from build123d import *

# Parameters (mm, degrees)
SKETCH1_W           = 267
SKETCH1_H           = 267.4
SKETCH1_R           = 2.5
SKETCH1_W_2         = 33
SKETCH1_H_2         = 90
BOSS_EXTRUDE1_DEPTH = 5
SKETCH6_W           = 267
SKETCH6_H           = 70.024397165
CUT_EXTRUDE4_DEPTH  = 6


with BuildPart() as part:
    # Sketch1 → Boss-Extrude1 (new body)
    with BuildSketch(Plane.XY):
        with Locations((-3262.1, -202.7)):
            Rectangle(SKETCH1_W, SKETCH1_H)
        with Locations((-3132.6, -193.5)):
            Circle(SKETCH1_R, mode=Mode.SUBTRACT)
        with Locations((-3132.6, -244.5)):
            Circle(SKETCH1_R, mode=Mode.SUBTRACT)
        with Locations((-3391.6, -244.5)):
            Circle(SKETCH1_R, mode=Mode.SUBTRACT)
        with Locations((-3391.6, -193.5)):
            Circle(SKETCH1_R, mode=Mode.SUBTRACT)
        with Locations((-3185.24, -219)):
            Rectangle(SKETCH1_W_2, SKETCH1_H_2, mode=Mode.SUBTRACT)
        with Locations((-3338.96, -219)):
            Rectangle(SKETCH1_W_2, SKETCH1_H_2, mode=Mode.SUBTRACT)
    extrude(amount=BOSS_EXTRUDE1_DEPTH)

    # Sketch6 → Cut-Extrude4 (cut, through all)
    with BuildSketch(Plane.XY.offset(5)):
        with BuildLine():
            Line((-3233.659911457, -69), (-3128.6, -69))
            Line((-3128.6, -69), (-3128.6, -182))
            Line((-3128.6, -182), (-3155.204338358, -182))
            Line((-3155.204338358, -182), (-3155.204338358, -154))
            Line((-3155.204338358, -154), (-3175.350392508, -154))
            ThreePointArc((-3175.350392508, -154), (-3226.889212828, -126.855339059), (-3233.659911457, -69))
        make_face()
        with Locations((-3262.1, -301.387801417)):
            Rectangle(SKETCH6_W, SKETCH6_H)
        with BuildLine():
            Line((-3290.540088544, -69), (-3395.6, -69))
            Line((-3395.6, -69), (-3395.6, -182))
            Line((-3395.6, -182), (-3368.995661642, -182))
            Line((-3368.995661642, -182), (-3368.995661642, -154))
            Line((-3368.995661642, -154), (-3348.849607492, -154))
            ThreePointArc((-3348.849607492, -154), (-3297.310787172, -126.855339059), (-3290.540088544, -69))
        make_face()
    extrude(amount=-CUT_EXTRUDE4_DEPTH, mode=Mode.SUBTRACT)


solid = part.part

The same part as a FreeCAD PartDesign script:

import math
import FreeCAD as App
import Part
import Sketcher


def add_polygon(sketch, points):
    """Adds a closed chain of lines whose ends are joined by coincident constraints."""
    first, n = sketch.GeometryCount, len(points)
    for a, b in zip(points, points[1:] + points[:1]):
        sketch.addGeometry(Part.LineSegment(App.Vector(*a, 0), App.Vector(*b, 0)), False)
    for i in range(n):
        sketch.addConstraint(Sketcher.Constraint("Coincident", first + i, 2, first + (i + 1) % n, 1))

doc = App.newDocument("Part")
params = doc.addObject("Spreadsheet::Sheet", "Params")
for row, (alias, value) in enumerate([
    ("sketch1_diameter", "5 mm"),
    ("sketch1_width", "267 mm"),
    ("sketch1_width2", "33 mm"),
    ("sketch1_height", "90 mm"),
    ("sketch1_height2", "267.4 mm"),
    ("pad1_length", "5 mm"),
    ("sketch2_radius", "62.5 mm"),
    ("sketch2_width", "267 mm"),
    ("sketch2_height", "28 mm"),
    ("sketch2_height2", "113 mm"),
], start=1):
    params.set(f"A{row}", alias)
    params.set(f"B{row}", "=" + value)
    params.setAlias(f"B{row}", alias)

body = doc.addObject("PartDesign::Body", "Body")

sketch1 = body.newObject("Sketcher::SketchObject", "Sketch")
sketch1.AttachmentSupport = (doc.getObject("XY_Plane"), [""])
sketch1.MapMode = "FlatFace"
add_polygon(sketch1, [(-3395.6, -69), (-3395.6, -336.4), (-3128.6, -336.4), (-3128.6, -69)])
sketch1.addGeometry(Part.Circle(App.Vector(-3391.6, -244.5, 0), App.Vector(0, 0, 1), 2.5), False)
sketch1.addGeometry(Part.Circle(App.Vector(-3132.6, -244.5, 0), App.Vector(0, 0, 1), 2.5), False)
add_polygon(sketch1, [(-3322.46, -264), (-3355.46, -264), (-3355.46, -174), (-3322.46, -174)])
sketch1.addGeometry(Part.Circle(App.Vector(-3391.6, -193.5, 0), App.Vector(0, 0, 1), 2.5), False)
add_polygon(sketch1, [(-3168.74, -264), (-3201.74, -264), (-3201.74, -174), (-3168.74, -174)])
sketch1.addGeometry(Part.Circle(App.Vector(-3132.6, -193.5, 0), App.Vector(0, 0, 1), 2.5), False)
sketch1.addConstraint([
    Sketcher.Constraint("Vertical", 0),
    Sketcher.Constraint("Horizontal", 1),
    Sketcher.Constraint("Vertical", 2),
    Sketcher.Constraint("Horizontal", 3),
    Sketcher.Constraint("Horizontal", 6),
    Sketcher.Constraint("Vertical", 7),
    Sketcher.Constraint("Horizontal", 8),
    Sketcher.Constraint("Vertical", 9),
    Sketcher.Constraint("Horizontal", 11),
    Sketcher.Constraint("Vertical", 12),
    Sketcher.Constraint("Horizontal", 13),
    Sketcher.Constraint("Vertical", 14),
    Sketcher.Constraint("Equal", 4, 5),
    Sketcher.Constraint("Equal", 5, 10),
    Sketcher.Constraint("Equal", 10, 15),
    Sketcher.Constraint("Horizontal", 4, 3, 5, 3),
    Sketcher.Constraint("Horizontal", 10, 3, 15, 3),
    Sketcher.Constraint("Horizontal", 9, 2, 11, 2),
    Sketcher.Constraint("Horizontal", 8, 2, 12, 2),
    Sketcher.Constraint("Vertical", 4, 3, 10, 3),
    Sketcher.Constraint("Vertical", 5, 3, 15, 3),
    Sketcher.Constraint("Equal", 8, 11),
    Sketcher.Constraint("Diameter", 4, 5.0),
    Sketcher.Constraint("DistanceX", 1, 1, 1, 2, 267.0),
    Sketcher.Constraint("DistanceX", 6, 2, 6, 1, 33.0),
    Sketcher.Constraint("DistanceY", 7, 1, 7, 2, 90.0),
    Sketcher.Constraint("DistanceY", 0, 2, 0, 1, 267.4),
    Sketcher.Constraint("DistanceY", 2, 2, -1, 1, 69.0),
    Sketcher.Constraint("DistanceY", 6, 2, -1, 1, 264.0),
    Sketcher.Constraint("DistanceX", 4, 3, 5, 3, 259.0),
    Sketcher.Constraint("DistanceY", 4, 3, 10, 3, 51.0),
    Sketcher.Constraint("DistanceX", 0, 2, 4, 3, 4.0),
    Sketcher.Constraint("DistanceX", 4, 3, -1, 1, 3391.6),
    Sketcher.Constraint("DistanceY", 4, 3, -1, 1, 244.5),
    Sketcher.Constraint("DistanceX", 6, 2, -1, 1, 3355.46),
    Sketcher.Constraint("DistanceX", 11, 2, -1, 1, 3201.74),
])
sketch1.setExpression("Constraints[34]", "Params.sketch1_diameter")
sketch1.setExpression("Constraints[35]", "Params.sketch1_width")
sketch1.setExpression("Constraints[36]", "Params.sketch1_width2")
sketch1.setExpression("Constraints[37]", "Params.sketch1_height")
sketch1.setExpression("Constraints[38]", "Params.sketch1_height2")
pad1 = body.newObject("PartDesign::Pad", "Pad")
pad1.Profile = sketch1
pad1.setExpression("Length", "Params.pad1_length")

sketch2 = body.newObject("Sketcher::SketchObject", "Sketch001")
sketch2.AttachmentSupport = (doc.getObject("XY_Plane"), [""])
sketch2.MapMode = "FlatFace"
sketch2.AttachmentOffset = App.Placement(App.Vector(0, 0, 5), App.Rotation())
sketch2.addGeometry(Part.LineSegment(App.Vector(-3128.6, -69, 0), App.Vector(-3233.659911, -69, 0)), False)
sketch2.addGeometry(Part.ArcOfCircle(Part.Circle(App.Vector(-3175.350393, -91.5, 0), App.Vector(0, 0, 1), 62.5), math.radians(158.899804), math.radians(270)), False)
sketch2.addGeometry(Part.LineSegment(App.Vector(-3175.350393, -154, 0), App.Vector(-3155.204338, -154, 0)), False)
sketch2.addGeometry(Part.LineSegment(App.Vector(-3155.204338, -154, 0), App.Vector(-3155.204338, -182, 0)), False)
sketch2.addGeometry(Part.LineSegment(App.Vector(-3155.204338, -182, 0), App.Vector(-3128.6, -182, 0)), False)
sketch2.addGeometry(Part.LineSegment(App.Vector(-3128.6, -182, 0), App.Vector(-3128.6, -69, 0)), False)
add_polygon(sketch2, [(-3395.6, -266.375603), (-3395.6, -336.4), (-3128.6, -336.4), (-3128.6, -266.375603)])
sketch2.addGeometry(Part.LineSegment(App.Vector(-3290.540089, -69, 0), App.Vector(-3395.6, -69, 0)), False)
sketch2.addGeometry(Part.LineSegment(App.Vector(-3395.6, -69, 0), App.Vector(-3395.6, -182, 0)), False)
sketch2.addGeometry(Part.LineSegment(App.Vector(-3395.6, -182, 0), App.Vector(-3368.995662, -182, 0)), False)
sketch2.addGeometry(Part.LineSegment(App.Vector(-3368.995662, -182, 0), App.Vector(-3368.995662, -154, 0)), False)
sketch2.addGeometry(Part.LineSegment(App.Vector(-3368.995662, -154, 0), App.Vector(-3348.849607, -154, 0)), False)
sketch2.addGeometry(Part.ArcOfCircle(Part.Circle(App.Vector(-3348.849607, -91.5, 0), App.Vector(0, 0, 1), 62.5), math.radians(-90), math.radians(21.100196)), False)
sketch2.addConstraint([
    Sketcher.Constraint("Coincident", 0, 2, 1, 1),
    Sketcher.Constraint("Tangent", 1, 2, 2, 1),
    Sketcher.Constraint("Coincident", 2, 2, 3, 1),
    Sketcher.Constraint("Coincident", 3, 2, 4, 1),
    Sketcher.Constraint("Coincident", 4, 2, 5, 1),
    Sketcher.Constraint("Coincident", 5, 2, 0, 1),
    Sketcher.Constraint("Coincident", 10, 2, 11, 1),
    Sketcher.Constraint("Coincident", 11, 2, 12, 1),
    Sketcher.Constraint("Coincident", 12, 2, 13, 1),
    Sketcher.Constraint("Coincident", 13, 2, 14, 1),
    Sketcher.Constraint("Tangent", 14, 2, 15, 1),
    Sketcher.Constraint("Coincident", 15, 2, 10, 1),
    Sketcher.Constraint("Horizontal", 0),
    Sketcher.Constraint("Horizontal", 2),
    Sketcher.Constraint("Vertical", 3),
    Sketcher.Constraint("Horizontal", 4),
    Sketcher.Constraint("Vertical", 5),
    Sketcher.Constraint("Vertical", 6),
    Sketcher.Constraint("Horizontal", 7),
    Sketcher.Constraint("Vertical", 8),
    Sketcher.Constraint("Horizontal", 9),
    Sketcher.Constraint("Horizontal", 10),
    Sketcher.Constraint("Vertical", 11),
    Sketcher.Constraint("Horizontal", 12),
    Sketcher.Constraint("Vertical", 13),
    Sketcher.Constraint("Horizontal", 14),
    Sketcher.Constraint("Equal", 1, 15),
    Sketcher.Constraint("Horizontal", 1, 3, 15, 3),
    Sketcher.Constraint("Horizontal", 5, 2, 10, 2),
    Sketcher.Constraint("Horizontal", 4, 2, 11, 2),
    Sketcher.Constraint("Vertical", 5, 2, 7, 2),
    Sketcher.Constraint("Vertical", 9, 2, 10, 2),
    Sketcher.Constraint("Equal", 0, 10),
    Sketcher.Constraint("Equal", 4, 12),
    Sketcher.Constraint("Radius", 1, 62.5),
    Sketcher.Constraint("DistanceX", 7, 1, 7, 2, 267.0),
    Sketcher.Constraint("DistanceY", 3, 2, 3, 1, 28.0),
    Sketcher.Constraint("DistanceY", 5, 1, 5, 2, 113.0),
    Sketcher.Constraint("DistanceY", 0, 2, -1, 1, 69.0),
    Sketcher.Constraint("DistanceX", 4, 2, -1, 1, 3128.6),
    Sketcher.Constraint("DistanceY", 6, 2, -1, 1, 336.4),
    Sketcher.Constraint("DistanceX", 0, 2, 0, 1, 105.059911),
    Sketcher.Constraint("DistanceX", 4, 1, 4, 2, 26.604338),
    Sketcher.Constraint("DistanceY", 6, 2, 6, 1, 70.024397),
])
sketch2.setExpression("Constraints[38]", "Params.sketch2_radius")
sketch2.setExpression("Constraints[39]", "Params.sketch2_width")
sketch2.setExpression("Constraints[40]", "Params.sketch2_height")
sketch2.setExpression("Constraints[41]", "Params.sketch2_height2")
pocket1 = body.newObject("PartDesign::Pocket", "Pocket")
pocket1.Profile = sketch2
pocket1.Type = "ThroughAll"

doc.recompute()
